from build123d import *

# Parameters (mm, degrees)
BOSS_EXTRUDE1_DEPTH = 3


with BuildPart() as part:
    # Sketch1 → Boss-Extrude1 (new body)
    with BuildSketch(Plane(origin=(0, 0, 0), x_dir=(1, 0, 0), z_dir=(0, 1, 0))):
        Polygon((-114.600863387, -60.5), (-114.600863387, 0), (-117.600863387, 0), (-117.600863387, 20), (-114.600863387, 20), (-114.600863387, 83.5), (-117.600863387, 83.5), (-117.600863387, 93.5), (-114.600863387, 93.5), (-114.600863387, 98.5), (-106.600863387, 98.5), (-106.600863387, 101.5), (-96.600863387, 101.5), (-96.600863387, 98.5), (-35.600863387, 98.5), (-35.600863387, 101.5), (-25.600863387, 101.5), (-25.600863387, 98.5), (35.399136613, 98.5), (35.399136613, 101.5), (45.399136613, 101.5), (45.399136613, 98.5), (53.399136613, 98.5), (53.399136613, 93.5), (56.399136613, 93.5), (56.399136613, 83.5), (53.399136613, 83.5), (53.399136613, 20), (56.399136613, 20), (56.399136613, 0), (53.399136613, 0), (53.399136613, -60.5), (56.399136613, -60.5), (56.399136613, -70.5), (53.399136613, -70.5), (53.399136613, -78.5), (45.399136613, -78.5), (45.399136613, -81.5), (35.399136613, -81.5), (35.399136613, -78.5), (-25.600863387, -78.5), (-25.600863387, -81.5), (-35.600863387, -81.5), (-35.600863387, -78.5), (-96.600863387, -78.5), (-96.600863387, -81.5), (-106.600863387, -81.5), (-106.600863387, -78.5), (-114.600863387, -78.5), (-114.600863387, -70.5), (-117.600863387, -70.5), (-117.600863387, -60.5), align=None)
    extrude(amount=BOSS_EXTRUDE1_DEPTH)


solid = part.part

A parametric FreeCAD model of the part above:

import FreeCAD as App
import Part
import Sketcher
from FreeCAD import Vector
Q = App.Units.Quantity

doc = App.newDocument("Part")
body = doc.addObject("PartDesign::Body", "Body")

sketch1 = body.newObject("Sketcher::SketchObject", "Sketch")
sketch1.AttachmentSupport = (doc.getObject("XZ_Plane"), [""])
sketch1.MapMode = "FlatFace"
sketch1.addGeometry([
    Part.LineSegment(Vector(-114.6, 0, 0), Vector(-114.6, 60.5, 0)),
    Part.LineSegment(Vector(-114.6, 60.5, 0), Vector(-117.6, 60.5, 0)),
    Part.LineSegment(Vector(-117.6, 60.5, 0), Vector(-117.6, 70.5, 0)),
    Part.LineSegment(Vector(-117.6, 70.5, 0), Vector(-114.6, 70.5, 0)),
    Part.LineSegment(Vector(-114.6, 70.5, 0), Vector(-114.6, 78.5, 0)),
    Part.LineSegment(Vector(-114.6, 78.5, 0), Vector(-106.6, 78.5, 0)),
    Part.LineSegment(Vector(-106.6, 78.5, 0), Vector(-106.6, 81.5, 0)),
    Part.LineSegment(Vector(-106.6, 81.5, 0), Vector(-96.6, 81.5, 0)),
    Part.LineSegment(Vector(-96.6, 81.5, 0), Vector(-96.6, 78.5, 0)),
    Part.LineSegment(Vector(-96.6, 78.5, 0), Vector(-35.6, 78.5, 0)),
    Part.LineSegment(Vector(-35.6, 78.5, 0), Vector(-35.6, 81.5, 0)),
    Part.LineSegment(Vector(-35.6, 81.5, 0), Vector(-25.6, 81.5, 0)),
    Part.LineSegment(Vector(-25.6, 81.5, 0), Vector(-25.6, 78.5, 0)),
    Part.LineSegment(Vector(-25.6, 78.5, 0), Vector(35.4, 78.5, 0)),
    Part.LineSegment(Vector(35.4, 78.5, 0), Vector(35.4, 81.5, 0)),
    Part.LineSegment(Vector(35.4, 81.5, 0), Vector(45.4, 81.5, 0)),
    Part.LineSegment(Vector(45.4, 81.5, 0), Vector(45.4, 78.5, 0)),
    Part.LineSegment(Vector(45.4, 78.5, 0), Vector(53.4, 78.5, 0)),
    Part.LineSegment(Vector(53.4, 78.5, 0), Vector(53.4, 70.5, 0)),
    Part.LineSegment(Vector(53.4, 70.5, 0), Vector(56.4, 70.5, 0)),
    Part.LineSegment(Vector(56.4, 70.5, 0), Vector(56.4, 60.5, 0)),
    Part.LineSegment(Vector(56.4, 60.5, 0), Vector(53.4, 60.5, 0)),
    Part.LineSegment(Vector(53.4, 60.5, 0), Vector(53.4, 0, 0)),
    Part.LineSegment(Vector(53.4, 0, 0), Vector(56.4, 0, 0)),
    Part.LineSegment(Vector(56.4, 0, 0), Vector(56.4, -20, 0)),
    Part.LineSegment(Vector(56.4, -20, 0), Vector(53.4, -20, 0)),
    Part.LineSegment(Vector(53.4, -20, 0), Vector(53.4, -83.5, 0)),
    Part.LineSegment(Vector(53.4, -83.5, 0), Vector(56.4, -83.5, 0)),
    Part.LineSegment(Vector(56.4, -83.5, 0), Vector(56.4, -93.5, 0)),
    Part.LineSegment(Vector(56.4, -93.5, 0), Vector(53.4, -93.5, 0)),
    Part.LineSegment(Vector(53.4, -93.5, 0), Vector(53.4, -98.5, 0)),
    Part.LineSegment(Vector(53.4, -98.5, 0), Vector(45.4, -98.5, 0)),
    Part.LineSegment(Vector(45.4, -98.5, 0), Vector(45.4, -101.5, 0)),
    Part.LineSegment(Vector(45.4, -101.5, 0), Vector(35.4, -101.5, 0)),
    Part.LineSegment(Vector(35.4, -101.5, 0), Vector(35.4, -98.5, 0)),
    Part.LineSegment(Vector(35.4, -98.5, 0), Vector(-25.6, -98.5, 0)),
    Part.LineSegment(Vector(-25.6, -98.5, 0), Vector(-25.6, -101.5, 0)),
    Part.LineSegment(Vector(-25.6, -101.5, 0), Vector(-35.6, -101.5, 0)),
    Part.LineSegment(Vector(-35.6, -101.5, 0), Vector(-35.6, -98.5, 0)),
    Part.LineSegment(Vector(-35.6, -98.5, 0), Vector(-96.6, -98.5, 0)),
    Part.LineSegment(Vector(-96.6, -98.5, 0), Vector(-96.6, -101.5, 0)),
    Part.LineSegment(Vector(-96.6, -101.5, 0), Vector(-106.6, -101.5, 0)),
    Part.LineSegment(Vector(-106.6, -101.5, 0), Vector(-106.6, -98.5, 0)),
    Part.LineSegment(Vector(-106.6, -98.5, 0), Vector(-114.6, -98.5, 0)),
    Part.LineSegment(Vector(-114.6, -98.5, 0), Vector(-114.6, -93.5, 0)),
    Part.LineSegment(Vector(-114.6, -93.5, 0), Vector(-117.6, -93.5, 0)),
    Part.LineSegment(Vector(-117.6, -93.5, 0), Vector(-117.6, -83.5, 0)),
    Part.LineSegment(Vector(-117.6, -83.5, 0), Vector(-114.6, -83.5, 0)),
    Part.LineSegment(Vector(-114.6, -83.5, 0), Vector(-114.6, -20, 0)),
    Part.LineSegment(Vector(-114.6, -20, 0), Vector(-117.6, -20, 0)),
    Part.LineSegment(Vector(-117.6, -20, 0), Vector(-117.6, 0, 0)),
    Part.LineSegment(Vector(-117.6, 0, 0), Vector(-114.6, 0, 0)),
], False)
sketch1.addConstraint([
    Sketcher.Constraint("Coincident", 0, 2, 1, 1),
    Sketcher.Constraint("Coincident", 1, 2, 2, 1),
    Sketcher.Constraint("Coincident", 2, 2, 3, 1),
    Sketcher.Constraint("Coincident", 3, 2, 4, 1),
    Sketcher.Constraint("Coincident", 4, 2, 5, 1),
    Sketcher.Constraint("Coincident", 5, 2, 6, 1),
    Sketcher.Constraint("Coincident", 6, 2, 7, 1),
    Sketcher.Constraint("Coincident", 7, 2, 8, 1),
    Sketcher.Constraint("Coincident", 8, 2, 9, 1),
    Sketcher.Constraint("Coincident", 9, 2, 10, 1),
    Sketcher.Constraint("Coincident", 10, 2, 11, 1),
    Sketcher.Constraint("Coincident", 11, 2, 12, 1),
    Sketcher.Constraint("Coincident", 12, 2, 13, 1),
    Sketcher.Constraint("Coincident", 13, 2, 14, 1),
    Sketcher.Constraint("Coincident", 14, 2, 15, 1),
    Sketcher.Constraint("Coincident", 15, 2, 16, 1),
    Sketcher.Constraint("Coincident", 16, 2, 17, 1),
    Sketcher.Constraint("Coincident", 17, 2, 18, 1),
    Sketcher.Constraint("Coincident", 18, 2, 19, 1),
    Sketcher.Constraint("Coincident", 19, 2, 20, 1),
    Sketcher.Constraint("Coincident", 20, 2, 21, 1),
    Sketcher.Constraint("Coincident", 21, 2, 22, 1),
    Sketcher.Constraint("Coincident", 22, 2, 23, 1),
    Sketcher.Constraint("Coincident", 23, 2, 24, 1),
    Sketcher.Constraint("Coincident", 24, 2, 25, 1),
    Sketcher.Constraint("Coincident", 25, 2, 26, 1),
    Sketcher.Constraint("Coincident", 26, 2, 27, 1),
    Sketcher.Constraint("Coincident", 27, 2, 28, 1),
    Sketcher.Constraint("Coincident", 28, 2, 29, 1),
    Sketcher.Constraint("Coincident", 29, 2, 30, 1),
    Sketcher.Constraint("Coincident", 30, 2, 31, 1),
    Sketcher.Constraint("Coincident", 31, 2, 32, 1),
    Sketcher.Constraint("Coincident", 32, 2, 33, 1),
    Sketcher.Constraint("Coincident", 33, 2, 34, 1),
    Sketcher.Constraint("Coincident", 34, 2, 35, 1),
    Sketcher.Constraint("Coincident", 35, 2, 36, 1),
    Sketcher.Constraint("Coincident", 36, 2, 37, 1),
    Sketcher.Constraint("Coincident", 37, 2, 38, 1),
    Sketcher.Constraint("Coincident", 38, 2, 39, 1),
    Sketcher.Constraint("Coincident", 39, 2, 40, 1),
    Sketcher.Constraint("Coincident", 40, 2, 41, 1),
    Sketcher.Constraint("Coincident", 41, 2, 42, 1),
    Sketcher.Constraint("Coincident", 42, 2, 43, 1),
    Sketcher.Constraint("Coincident", 43, 2, 44, 1),
    Sketcher.Constraint("Coincident", 44, 2, 45, 1),
    Sketcher.Constraint("Coincident", 45, 2, 46, 1),
    Sketcher.Constraint("Coincident", 46, 2, 47, 1),
    Sketcher.Constraint("Coincident", 47, 2, 48, 1),
    Sketcher.Constraint("Coincident", 48, 2, 49, 1),
    Sketcher.Constraint("Coincident", 49, 2, 50, 1),
    Sketcher.Constraint("Coincident", 50, 2, 51, 1),
    Sketcher.Constraint("Coincident", 51, 2, 0, 1),
    Sketcher.Constraint("Vertical", 0),
    Sketcher.Constraint("Horizontal", 1),
    Sketcher.Constraint("Vertical", 2),
    Sketcher.Constraint("Horizontal", 3),
    Sketcher.Constraint("Vertical", 4),
    Sketcher.Constraint("Horizontal", 5),
    Sketcher.Constraint("Vertical", 6),
    Sketcher.Constraint("Horizontal", 7),
    Sketcher.Constraint("Vertical", 8),
    Sketcher.Constraint("Horizontal", 9),
    Sketcher.Constraint("Vertical", 10),
    Sketcher.Constraint("Horizontal", 11),
    Sketcher.Constraint("Vertical", 12),
    Sketcher.Constraint("Horizontal", 13),
    Sketcher.Constraint("Vertical", 14),
    Sketcher.Constraint("Horizontal", 15),
    Sketcher.Constraint("Vertical", 16),
    Sketcher.Constraint("Horizontal", 17),
    Sketcher.Constraint("Vertical", 18),
    Sketcher.Constraint("Horizontal", 19),
    Sketcher.Constraint("Vertical", 20),
    Sketcher.Constraint("Horizontal", 21),
    Sketcher.Constraint("Vertical", 22),
    Sketcher.Constraint("Horizontal", 23),
    Sketcher.Constraint("Vertical", 24),
    Sketcher.Constraint("Horizontal", 25),
    Sketcher.Constraint("Vertical", 26),
    Sketcher.Constraint("Horizontal", 27),
    Sketcher.Constraint("Vertical", 28),
    Sketcher.Constraint("Horizontal", 29),
    Sketcher.Constraint("Vertical", 30),
    Sketcher.Constraint("Horizontal", 31),
    Sketcher.Constraint("Vertical", 32),
    Sketcher.Constraint("Horizontal", 33),
    Sketcher.Constraint("Vertical", 34),
    Sketcher.Constraint("Horizontal", 35),
    Sketcher.Constraint("Vertical", 36),
    Sketcher.Constraint("Horizontal", 37),
    Sketcher.Constraint("Vertical", 38),
    Sketcher.Constraint("Horizontal", 39),
    Sketcher.Constraint("Vertical", 40),
    Sketcher.Constraint("Horizontal", 41),
    Sketcher.Constraint("Vertical", 42),
    Sketcher.Constraint("Horizontal", 43),
    Sketcher.Constraint("Vertical", 44),
    Sketcher.Constraint("Horizontal", 45),
    Sketcher.Constraint("Vertical", 46),
    Sketcher.Constraint("Horizontal", 47),
    Sketcher.Constraint("Vertical", 48),
    Sketcher.Constraint("Horizontal", 49),
    Sketcher.Constraint("Vertical", 50),
    Sketcher.Constraint("Horizontal", 51),
    Sketcher.Constraint("PointOnObject", 22, 2, -1),
    Sketcher.Constraint("PointOnObject", 50, 2, -1),
    Sketcher.Constraint("Horizontal", 5, 2, 8, 2),
    Sketcher.Constraint("Horizontal", 7, 2, 10, 2),
    Sketcher.Constraint("Horizontal", 9, 2, 12, 2),
    Sketcher.Constraint("Horizontal", 11, 2, 14, 2),
    Sketcher.Constraint("Horizontal", 13, 2, 16, 2),
    Sketcher.Constraint("Horizontal", 3, 2, 18, 2),
    Sketcher.Constraint("Horizontal", 1, 2, 20, 2),
    Sketcher.Constraint("Horizontal", 31, 2, 34, 2),
    Sketcher.Constraint("Horizontal", 33, 2, 36, 2),
    Sketcher.Constraint("Horizontal", 35, 2, 38, 2),
    Sketcher.Constraint("Horizontal", 37, 2, 40, 2),
    Sketcher.Constraint("Horizontal", 39, 2, 42, 2),
    Sketcher.Constraint("Horizontal", 29, 2, 44, 2),
    Sketcher.Constraint("Horizontal", 27, 2, 46, 2),
    Sketcher.Constraint("Horizontal", 25, 2, 48, 2),
    Sketcher.Constraint("Vertical", 0, 2, 3, 2),
    Sketcher.Constraint("Vertical", 18, 2, 21, 2),
    Sketcher.Constraint("Vertical", 20, 2, 23, 2),
    Sketcher.Constraint("Vertical", 22, 2, 25, 2),
    Sketcher.Constraint("Vertical", 24, 2, 27, 2),
    Sketcher.Constraint("Vertical", 26, 2, 29, 2),
    Sketcher.Constraint("Vertical", 16, 2, 31, 2),
    Sketcher.Constraint("Vertical", 14, 2, 33, 2),
    Sketcher.Constraint("Vertical", 12, 2, 35, 2),
    Sketcher.Constraint("Vertical", 10, 2, 37, 2),
    Sketcher.Constraint("Vertical", 8, 2, 39, 2),
    Sketcher.Constraint("Vertical", 6, 2, 41, 2),
    Sketcher.Constraint("Vertical", 4, 2, 43, 2),
    Sketcher.Constraint("Vertical", 2, 2, 45, 2),
    Sketcher.Constraint("Vertical", 44, 2, 47, 2),
    Sketcher.Constraint("Vertical", 46, 2, 49, 2),
    Sketcher.Constraint("Equal", 7, 11),
    Sketcher.Constraint("Equal", 9, 13),
    Sketcher.Constraint("Equal", 11, 15),
    Sketcher.Constraint("Equal", 5, 17),
    Sketcher.Constraint("Equal", 3, 19),
    Sketcher.Constraint("Equal", 41, 2),
    Sketcher.Constraint("Equal", 43, 4),
    Sketcher.Constraint("Equal", 51, 6),
    Sketcher.Constraint("Equal", 20, 28),
    Sketcher.Constraint("Equal", 16, 32),
    Sketcher.Constraint("DistanceX", 1, 2, 1, 1, Q("3 mm")),
    Sketcher.Constraint("DistanceX", 5, 1, 5, 2, Q("8 mm")),
    Sketcher.Constraint("DistanceX", 7, 1, 7, 2, Q("10 mm")),
    Sketcher.Constraint("DistanceX", 9, 1, 9, 2, Q("61 mm")),
    Sketcher.Constraint("DistanceY", 24, 2, 24, 1, Q("20 mm")),
    Sketcher.Constraint("DistanceY", 30, 2, 30, 1, Q("5 mm")),
    Sketcher.Constraint("DistanceY", 0, 1, 0, 2, Q("60.5 mm")),
    Sketcher.Constraint("DistanceY", 26, 2, 26, 1, Q("63.5 mm")),
    Sketcher.Constraint("DistanceX", 0, 2, -1, 1, Q("114.600863 mm")),
])
pad1 = body.newObject("PartDesign::Pad", "Pad")
pad1.Profile = sketch1
pad1.Length = 3
pad1.Reversed = True

doc.recompute()
